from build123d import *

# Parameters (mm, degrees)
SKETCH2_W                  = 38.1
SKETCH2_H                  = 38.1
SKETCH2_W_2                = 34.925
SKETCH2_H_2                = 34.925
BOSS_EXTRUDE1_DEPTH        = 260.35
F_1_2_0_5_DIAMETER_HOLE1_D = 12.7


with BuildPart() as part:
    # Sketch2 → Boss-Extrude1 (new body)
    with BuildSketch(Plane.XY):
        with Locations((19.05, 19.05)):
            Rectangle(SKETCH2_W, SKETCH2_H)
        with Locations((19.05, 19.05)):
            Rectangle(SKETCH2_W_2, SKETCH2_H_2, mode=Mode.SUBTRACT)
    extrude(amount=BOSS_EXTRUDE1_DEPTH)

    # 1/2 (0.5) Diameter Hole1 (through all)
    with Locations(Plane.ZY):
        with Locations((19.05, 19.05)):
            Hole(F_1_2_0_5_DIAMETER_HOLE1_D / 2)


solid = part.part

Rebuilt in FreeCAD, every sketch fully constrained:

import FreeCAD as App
import Part
import Sketcher
Q = App.Units.Quantity


def add_polygon(sketch, points):
    """Adds a closed chain of lines whose ends are joined by coincident constraints."""
    first, n = sketch.GeometryCount, len(points)
    for a, b in zip(points, points[1:] + points[:1]):
        sketch.addGeometry(Part.LineSegment(App.Vector(*a, 0), App.Vector(*b, 0)), False)
    for i in range(n):
        sketch.addConstraint(Sketcher.Constraint("Coincident", first + i, 2, first + (i + 1) % n, 1))

doc = App.newDocument("Part")
body = doc.addObject("PartDesign::Body", "Body")

# Sketch on XY plane
sketch1 = body.newObject("Sketcher::SketchObject", "Sketch")
sketch1.AttachmentSupport = (doc.getObject("XY_Plane"), [""])
sketch1.MapMode = "FlatFace"
add_polygon(sketch1, [(0, 38.1), (0, 0), (38.1, 0), (38.1, 38.1)])  # lines 0-3
add_polygon(sketch1, [(36.5125, 1.5875), (1.5875, 1.5875), (1.5875, 36.5125), (36.5125, 36.5125)])  # lines 4-7
sketch1.addConstraint([
    Sketcher.Constraint("Vertical", 0),
    Sketcher.Constraint("Horizontal", 1),
    Sketcher.Constraint("Vertical", 2),
    Sketcher.Constraint("Horizontal", 3),
    Sketcher.Constraint("Horizontal", 4),
    Sketcher.Constraint("Vertical", 5),
    Sketcher.Constraint("Horizontal", 6),
    Sketcher.Constraint("Vertical", 7),
    Sketcher.Constraint("Coincident", 0, 2, -1, 1),
    Sketcher.Constraint("Equal", 3, 0),
    Sketcher.Constraint("Equal", 6, 5),
    Sketcher.Constraint("DistanceX", 1, 1, 1, 2, Q("1.5 in")),
    Sketcher.Constraint("DistanceX", 4, 2, 4, 1, Q("1.375 in")),
    Sketcher.Constraint("DistanceX", -1, 1, 4, 2, Q("0.0625 in")),
    Sketcher.Constraint("DistanceY", -1, 1, 4, 2, Q("0.0625 in")),
])
pad1 = body.newObject("PartDesign::Pad", "Pad")
pad1.Profile = sketch1
pad1.Length = Q("10.25 in")

# Sketch on YZ plane
sketch2 = body.newObject("Sketcher::SketchObject", "Sketch001")
sketch2.AttachmentSupport = (doc.getObject("YZ_Plane"), [""])
sketch2.MapMode = "FlatFace"
sketch2.addGeometry(Part.Circle(App.Vector(19.05, 19.05, 0), App.Vector(0, 0, 1), 6.35), False)
sketch2.addConstraint([
    Sketcher.Constraint("Diameter", 0, Q("0.5 in")),
    Sketcher.Constraint("DistanceX", -1, 1, 0, 3, Q("0.75 in")),
    Sketcher.Constraint("DistanceY", -1, 1, 0, 3, Q("0.75 in")),
])
doc.recompute()
hole = body.newObject("PartDesign::Hole", "Hole")
hole.Profile = sketch2
hole.ThreadType = "None"
hole.Diameter = Q("0.5 in")
hole.DepthType = "ThroughAll"
hole.Reversed = True

doc.recompute()
